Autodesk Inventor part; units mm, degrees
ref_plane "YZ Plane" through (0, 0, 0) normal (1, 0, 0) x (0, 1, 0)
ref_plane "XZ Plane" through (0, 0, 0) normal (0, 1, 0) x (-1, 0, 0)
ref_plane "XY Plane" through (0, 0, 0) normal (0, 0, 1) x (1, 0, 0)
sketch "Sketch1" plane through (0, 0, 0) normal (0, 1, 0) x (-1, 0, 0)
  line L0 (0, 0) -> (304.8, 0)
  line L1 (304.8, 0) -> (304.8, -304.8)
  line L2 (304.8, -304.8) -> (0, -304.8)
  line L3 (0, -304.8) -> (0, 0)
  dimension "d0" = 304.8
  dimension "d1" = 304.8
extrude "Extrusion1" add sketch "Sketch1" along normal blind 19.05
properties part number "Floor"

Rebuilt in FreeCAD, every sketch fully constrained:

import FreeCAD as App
import Part
import Sketcher
from FreeCAD import Vector
Q = App.Units.Quantity


def add_polygon(sketch, points):
    """Adds a closed chain of lines whose ends are joined by coincident constraints."""
    first, n = sketch.GeometryCount, len(points)
    for a, b in zip(points, points[1:] + points[:1]):
        sketch.addGeometry(Part.LineSegment(App.Vector(*a, 0), App.Vector(*b, 0)), False)
    for i in range(n):
        sketch.addConstraint(Sketcher.Constraint("Coincident", first + i, 2, first + (i + 1) % n, 1))

doc = App.newDocument("Part")
body = doc.addObject("PartDesign::Body", "Body")

sketch1 = body.newObject("Sketcher::SketchObject", "Sketch")
sketch1.AttachmentSupport = (doc.getObject("XZ_Plane"), [""])
sketch1.MapMode = "FlatFace"
add_polygon(sketch1, [(-304.8, 0), (0, 0), (0, -304.8), (-304.8, -304.8)])
sketch1.addConstraint([
    Sketcher.Constraint("Horizontal", 0),
    Sketcher.Constraint("Vertical", 1),
    Sketcher.Constraint("Horizontal", 2),
    Sketcher.Constraint("Vertical", 3),
    Sketcher.Constraint("Coincident", 0, 2, -1, 1),
    Sketcher.Constraint("Equal", 2, 1),
    Sketcher.Constraint("DistanceX", 0, 1, 0, 2, Q("12 in")),
])
pad1 = body.newObject("PartDesign::Pad", "Pad")
pad1.Profile = sketch1
pad1.Length = Q("0.75 in")
pad1.Reversed = True

doc.recompute()
